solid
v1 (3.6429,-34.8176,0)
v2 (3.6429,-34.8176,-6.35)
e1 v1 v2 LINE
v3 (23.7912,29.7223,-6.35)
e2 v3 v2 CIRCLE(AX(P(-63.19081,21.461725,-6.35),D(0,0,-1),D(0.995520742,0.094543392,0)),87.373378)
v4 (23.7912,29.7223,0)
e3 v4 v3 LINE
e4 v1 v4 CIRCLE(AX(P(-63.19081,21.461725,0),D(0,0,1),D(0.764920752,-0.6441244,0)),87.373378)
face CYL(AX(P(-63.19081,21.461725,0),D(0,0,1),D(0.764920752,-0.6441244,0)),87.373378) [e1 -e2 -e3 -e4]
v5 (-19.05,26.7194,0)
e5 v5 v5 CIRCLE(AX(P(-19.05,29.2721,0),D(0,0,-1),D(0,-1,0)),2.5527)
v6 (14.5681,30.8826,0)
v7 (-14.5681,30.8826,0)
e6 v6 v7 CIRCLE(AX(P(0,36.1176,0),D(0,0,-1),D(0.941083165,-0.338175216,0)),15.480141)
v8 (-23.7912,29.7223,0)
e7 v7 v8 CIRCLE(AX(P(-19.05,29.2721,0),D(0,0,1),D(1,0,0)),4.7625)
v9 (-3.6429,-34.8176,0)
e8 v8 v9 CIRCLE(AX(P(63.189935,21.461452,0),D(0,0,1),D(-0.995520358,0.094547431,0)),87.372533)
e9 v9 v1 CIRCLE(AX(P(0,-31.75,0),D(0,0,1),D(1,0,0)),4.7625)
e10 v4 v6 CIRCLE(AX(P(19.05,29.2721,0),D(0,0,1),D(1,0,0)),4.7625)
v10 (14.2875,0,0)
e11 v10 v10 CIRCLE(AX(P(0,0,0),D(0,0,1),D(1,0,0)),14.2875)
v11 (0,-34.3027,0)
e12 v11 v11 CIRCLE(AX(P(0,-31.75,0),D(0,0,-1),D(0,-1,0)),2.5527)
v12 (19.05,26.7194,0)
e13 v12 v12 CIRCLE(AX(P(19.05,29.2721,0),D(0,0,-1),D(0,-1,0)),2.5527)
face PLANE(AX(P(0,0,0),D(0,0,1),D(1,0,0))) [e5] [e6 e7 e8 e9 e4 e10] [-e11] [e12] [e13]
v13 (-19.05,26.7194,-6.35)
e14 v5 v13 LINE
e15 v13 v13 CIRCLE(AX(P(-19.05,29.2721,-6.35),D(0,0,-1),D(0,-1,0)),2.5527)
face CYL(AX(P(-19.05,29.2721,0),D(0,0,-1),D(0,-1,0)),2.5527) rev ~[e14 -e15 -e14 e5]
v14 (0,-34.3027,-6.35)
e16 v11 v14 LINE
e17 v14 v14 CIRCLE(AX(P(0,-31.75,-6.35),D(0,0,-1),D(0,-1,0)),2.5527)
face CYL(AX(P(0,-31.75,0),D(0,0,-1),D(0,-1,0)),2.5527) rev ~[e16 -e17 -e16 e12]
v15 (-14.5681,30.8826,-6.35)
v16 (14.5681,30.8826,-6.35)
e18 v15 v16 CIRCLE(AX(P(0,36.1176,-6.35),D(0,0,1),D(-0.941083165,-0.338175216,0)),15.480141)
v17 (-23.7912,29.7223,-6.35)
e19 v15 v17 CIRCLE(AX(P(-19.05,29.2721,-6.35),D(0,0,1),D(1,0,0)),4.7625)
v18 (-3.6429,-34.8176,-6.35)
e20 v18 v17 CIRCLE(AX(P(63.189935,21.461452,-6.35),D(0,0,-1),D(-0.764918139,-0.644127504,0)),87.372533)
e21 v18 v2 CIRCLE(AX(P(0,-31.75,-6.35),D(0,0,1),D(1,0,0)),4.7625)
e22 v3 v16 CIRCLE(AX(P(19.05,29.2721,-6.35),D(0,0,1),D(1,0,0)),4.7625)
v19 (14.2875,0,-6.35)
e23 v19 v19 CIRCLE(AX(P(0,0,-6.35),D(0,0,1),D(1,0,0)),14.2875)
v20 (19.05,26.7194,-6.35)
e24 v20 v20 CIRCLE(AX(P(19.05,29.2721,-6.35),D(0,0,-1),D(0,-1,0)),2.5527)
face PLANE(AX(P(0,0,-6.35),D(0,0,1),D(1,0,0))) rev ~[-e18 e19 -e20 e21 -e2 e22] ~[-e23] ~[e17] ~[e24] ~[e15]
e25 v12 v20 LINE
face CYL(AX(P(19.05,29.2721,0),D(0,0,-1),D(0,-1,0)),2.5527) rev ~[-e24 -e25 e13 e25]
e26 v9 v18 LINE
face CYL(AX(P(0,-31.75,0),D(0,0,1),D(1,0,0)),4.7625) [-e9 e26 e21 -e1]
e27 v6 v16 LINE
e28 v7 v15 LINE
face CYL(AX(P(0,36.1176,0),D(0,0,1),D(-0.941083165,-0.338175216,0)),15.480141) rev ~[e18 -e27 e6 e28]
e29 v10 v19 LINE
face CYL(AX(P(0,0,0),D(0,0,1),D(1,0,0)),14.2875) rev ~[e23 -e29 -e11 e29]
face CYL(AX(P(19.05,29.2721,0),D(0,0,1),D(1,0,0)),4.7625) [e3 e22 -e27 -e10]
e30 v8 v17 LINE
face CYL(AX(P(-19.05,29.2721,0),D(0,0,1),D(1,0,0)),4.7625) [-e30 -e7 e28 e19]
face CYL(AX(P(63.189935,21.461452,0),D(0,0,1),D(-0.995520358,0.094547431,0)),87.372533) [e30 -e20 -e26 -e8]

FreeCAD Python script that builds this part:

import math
import FreeCAD as App
import Part
import Sketcher
Q = App.Units.Quantity

doc = App.newDocument("Part")
body = doc.addObject("PartDesign::Body", "Body")

sketch1 = doc.addObject("Sketcher::SketchObject", "Sketch")
body.addObject(sketch1)
sketch1.AttachmentSupport = (doc.XY_Plane, [""])
sketch1.MapMode = "FlatFace"
sketch1.addGeometry(Part.ArcOfCircle(Part.Circle(App.Vector(19.1, 29.3, 0), App.Vector(0, 0, 1), 4.8), math.radians(5), math.radians(160)), False)
sketch1.addGeometry(Part.ArcOfCircle(Part.Circle(App.Vector(0, 36.1, 0), App.Vector(0, 0, 1), 15.5), math.radians(-160), math.radians(-20)), False)
sketch1.addGeometry(Part.ArcOfCircle(Part.Circle(App.Vector(-19.1, 29.3, 0), App.Vector(0, 0, 1), 4.8), math.radians(20), math.radians(175)), False)
sketch1.addGeometry(Part.ArcOfCircle(Part.Circle(App.Vector(63.2, 21.5, 0), App.Vector(0, 0, 1), 87.4), math.radians(175), math.radians(220)), False)
sketch1.addGeometry(Part.ArcOfCircle(Part.Circle(App.Vector(0, -31.8, 0), App.Vector(0, 0, 1), 4.8), math.radians(-140), math.radians(-40)), False)
sketch1.addGeometry(Part.ArcOfCircle(Part.Circle(App.Vector(-63.2, 21.5, 0), App.Vector(0, 0, 1), 87.4), math.radians(-40), math.radians(5)), False)
sketch1.addGeometry(Part.Circle(App.Vector(0, 0, 0), App.Vector(0, 0, 1), 14.3), False)
sketch1.addConstraint(Sketcher.Constraint("Tangent", 0, 2, 1, 2))
sketch1.addConstraint(Sketcher.Constraint("Tangent", 1, 1, 2, 1))
sketch1.addConstraint(Sketcher.Constraint("Tangent", 2, 2, 3, 1))
sketch1.addConstraint(Sketcher.Constraint("Tangent", 3, 2, 4, 1))
sketch1.addConstraint(Sketcher.Constraint("Tangent", 4, 2, 5, 1))
sketch1.addConstraint(Sketcher.Constraint("Tangent", 5, 2, 0, 1))
sketch1.addConstraint(Sketcher.Constraint("Coincident", 6, 3, -1, 1))
sketch1.addConstraint(Sketcher.Constraint("Equal", 0, 2))
sketch1.addConstraint(Sketcher.Constraint("Equal", 2, 4))
sketch1.addConstraint(Sketcher.Constraint("Equal", 3, 5))
sketch1.addConstraint(Sketcher.Constraint("Symmetric", 0, 3, 2, 3, -2))
sketch1.addConstraint(Sketcher.Constraint("PointOnObject", 4, 3, -2))
sketch1.addConstraint(Sketcher.Constraint("Diameter", 6, Q("1.125 in")))
sketch1.addConstraint(Sketcher.Constraint("Radius", 0, Q("0.1875 in")))
sketch1.addConstraint(Sketcher.Constraint("DistanceX", -1, 1, 0, 3, Q("0.75 in")))
sketch1.addConstraint(Sketcher.Constraint("DistanceY", 4, 3, -1, 1, Q("1.25 in")))
sketch1.addConstraint(Sketcher.Constraint("Radius", 1, 15.4801))
sketch1.addConstraint(Sketcher.Constraint("Radius", 3, 87.373))
sketch1.addConstraint(Sketcher.Constraint("DistanceY", 3, 3, 1, 3, Q("0.577 in")))
pad1 = doc.addObject("PartDesign::Pad", "Pad")
body.addObject(pad1)
pad1.Profile = sketch1
pad1.Length = Q("0.25 in")
pad1.Reversed = True

sketch2 = doc.addObject("Sketcher::SketchObject", "Sketch001")
body.addObject(sketch2)
sketch2.AttachmentSupport = (doc.XY_Plane, [""])
sketch2.MapMode = "FlatFace"
sketch2.addGeometry(Part.Circle(App.Vector(0, 0, 0), App.Vector(0, 0, 1), 2.6), False)
sketch2.addGeometry(Part.Circle(App.Vector(-19.1, 29.3, 0), App.Vector(0, 0, 1), 2.6), False)
sketch2.addGeometry(Part.Circle(App.Vector(19.1, 29.3, 0), App.Vector(0, 0, 1), 2.6), False)
sketch2.addGeometry(Part.Circle(App.Vector(0, -31.8, 0), App.Vector(0, 0, 1), 2.6), False)
sketch2.addConstraint(Sketcher.Constraint("Coincident", 0, 3, -1, 1))
sketch2.addConstraint(Sketcher.Constraint("Equal", 0, 1))
sketch2.addConstraint(Sketcher.Constraint("Equal", 1, 2))
sketch2.addConstraint(Sketcher.Constraint("Equal", 2, 3))
sketch2.addConstraint(Sketcher.Constraint("Symmetric", 1, 3, 2, 3, -2))
sketch2.addConstraint(Sketcher.Constraint("PointOnObject", 3, 3, -2))
sketch2.addConstraint(Sketcher.Constraint("Diameter", 0, Q("0.201 in")))
sketch2.addConstraint(Sketcher.Constraint("DistanceX", 1, 3, 2, 3, Q("1.5 in")))
sketch2.addConstraint(Sketcher.Constraint("DistanceY", 3, 3, -1, 1, Q("1.25 in")))
sketch2.addConstraint(Sketcher.Constraint("DistanceY", -1, 1, 1, 3, 29.272))
doc.recompute()
hole = doc.addObject("PartDesign::Hole", "Hole")
body.addObject(hole)
hole.Profile = sketch2
hole.ThreadType = "None"
hole.Diameter = Q("0.201 in")
hole.DepthType = "ThroughAll"

doc.recompute()
